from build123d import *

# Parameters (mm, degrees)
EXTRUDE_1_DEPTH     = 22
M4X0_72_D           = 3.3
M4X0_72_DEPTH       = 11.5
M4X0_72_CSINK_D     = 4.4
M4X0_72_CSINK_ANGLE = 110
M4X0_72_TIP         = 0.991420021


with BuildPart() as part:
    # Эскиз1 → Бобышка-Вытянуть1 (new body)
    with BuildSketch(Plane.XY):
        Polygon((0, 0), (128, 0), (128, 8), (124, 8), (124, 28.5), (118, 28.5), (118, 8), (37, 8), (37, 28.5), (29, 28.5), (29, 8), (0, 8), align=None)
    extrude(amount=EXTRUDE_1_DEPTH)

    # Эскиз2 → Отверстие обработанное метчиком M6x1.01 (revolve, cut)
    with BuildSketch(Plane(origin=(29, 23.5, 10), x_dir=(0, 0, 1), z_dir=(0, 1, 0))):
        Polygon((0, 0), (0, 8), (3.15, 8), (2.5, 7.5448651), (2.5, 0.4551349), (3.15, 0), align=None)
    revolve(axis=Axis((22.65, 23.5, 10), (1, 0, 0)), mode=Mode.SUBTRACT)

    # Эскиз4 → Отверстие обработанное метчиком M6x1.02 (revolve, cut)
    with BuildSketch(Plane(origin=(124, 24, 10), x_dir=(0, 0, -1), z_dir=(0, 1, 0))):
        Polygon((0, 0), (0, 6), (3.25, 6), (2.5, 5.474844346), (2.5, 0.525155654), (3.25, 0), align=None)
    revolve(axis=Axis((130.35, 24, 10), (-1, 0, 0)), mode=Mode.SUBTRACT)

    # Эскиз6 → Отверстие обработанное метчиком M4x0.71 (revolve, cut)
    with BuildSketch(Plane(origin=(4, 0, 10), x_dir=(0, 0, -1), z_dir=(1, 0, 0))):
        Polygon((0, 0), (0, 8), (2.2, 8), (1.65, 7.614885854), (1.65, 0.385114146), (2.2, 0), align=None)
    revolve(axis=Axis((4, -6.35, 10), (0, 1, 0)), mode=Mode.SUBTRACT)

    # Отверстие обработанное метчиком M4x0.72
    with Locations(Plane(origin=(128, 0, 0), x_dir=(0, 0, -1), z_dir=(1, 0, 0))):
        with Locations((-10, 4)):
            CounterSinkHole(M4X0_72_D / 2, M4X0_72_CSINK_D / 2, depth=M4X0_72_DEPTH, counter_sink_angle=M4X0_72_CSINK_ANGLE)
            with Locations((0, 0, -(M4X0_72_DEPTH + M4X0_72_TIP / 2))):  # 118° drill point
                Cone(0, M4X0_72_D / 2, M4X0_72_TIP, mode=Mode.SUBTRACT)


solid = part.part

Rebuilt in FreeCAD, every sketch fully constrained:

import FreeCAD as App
import Part
import Sketcher

V = App.Vector
Q = App.Units.Quantity


def add_polygon(sketch, points):
    """Adds a closed chain of lines whose ends are joined by coincident constraints."""
    first, n = sketch.GeometryCount, len(points)
    for a, b in zip(points, points[1:] + points[:1]):
        sketch.addGeometry(Part.LineSegment(App.Vector(*a, 0), App.Vector(*b, 0)), False)
    for i in range(n):
        sketch.addConstraint(Sketcher.Constraint("Coincident", first + i, 2, first + (i + 1) % n, 1))

doc = App.newDocument("Part")
body = doc.addObject("PartDesign::Body", "Body")

# Sketch on XY plane
sketch1 = body.newObject("Sketcher::SketchObject", "Sketch")
sketch1.AttachmentSupport = (doc.getObject("XY_Plane"), [""])
sketch1.MapMode = "FlatFace"
add_polygon(sketch1, [(0, 0), (128, 0), (128, 8), (124, 8), (124, 28.5), (118, 28.5), (118, 8), (37, 8), (37, 28.5), (29, 28.5), (29, 8), (0, 8)])  # lines 0-11
sketch1.addConstraint([
    Sketcher.Constraint("Horizontal", 0),
    Sketcher.Constraint("Vertical", 1),
    Sketcher.Constraint("Horizontal", 2),
    Sketcher.Constraint("Vertical", 3),
    Sketcher.Constraint("Horizontal", 4),
    Sketcher.Constraint("Vertical", 5),
    Sketcher.Constraint("Horizontal", 6),
    Sketcher.Constraint("Vertical", 7),
    Sketcher.Constraint("Horizontal", 8),
    Sketcher.Constraint("Vertical", 9),
    Sketcher.Constraint("Horizontal", 10),
    Sketcher.Constraint("Vertical", 11),
    Sketcher.Constraint("Coincident", 11, 2, -1, 1),
    Sketcher.Constraint("Horizontal", 2, 2, 5, 2),
    Sketcher.Constraint("Horizontal", 4, 2, 7, 2),
    Sketcher.Constraint("Horizontal", 6, 2, 9, 2),
    Sketcher.Constraint("Equal", 8, 1),
    Sketcher.Constraint("DistanceX", 0, 1, 0, 2, 128.0),
    Sketcher.Constraint("DistanceX", 2, 2, 2, 1, 4.0),
    Sketcher.Constraint("DistanceX", 4, 2, 4, 1, 6.0),
    Sketcher.Constraint("DistanceX", 6, 2, 6, 1, 81.0),
    Sketcher.Constraint("DistanceX", 8, 2, 8, 1, 8.0),
    Sketcher.Constraint("DistanceY", 3, 1, 3, 2, 20.5),
])
pad1 = body.newObject("PartDesign::Pad", "Pad")
pad1.Profile = sketch1
pad1.Length = 22

# Sketch on XZ plane
sketch2 = body.newObject("Sketcher::SketchObject", "Sketch001")
sketch2.AttachmentSupport = (doc.getObject("XZ_Plane"), [""])
sketch2.MapMode = "FlatFace"
sketch2.AttachmentOffset = App.Placement(V(0, 0, -23.5), App.Rotation())
add_polygon(sketch2, [(37, 10), (29, 10), (29, 13.2), (29.5, 12.5), (36.5, 12.5), (37, 13.2)])  # lines 0-5
sketch2.addGeometry(Part.LineSegment(V(29, 10, 0), V(37, 10, 0)), True)  # axis
sketch2.addConstraint([
    Sketcher.Constraint("Horizontal", 0),
    Sketcher.Constraint("Vertical", 1),
    Sketcher.Constraint("Horizontal", 3),
    Sketcher.Constraint("Vertical", 5),
    Sketcher.Constraint("Horizontal", 6),
    Sketcher.Constraint("Coincident", 6, 1, 0, 2),
    Sketcher.Constraint("Horizontal", 1, 2, 4, 2),
    Sketcher.Constraint("Vertical", 4, 2, 6, 2),
    Sketcher.Constraint("Equal", 2, 4),
    Sketcher.Constraint("DistanceX", 0, 2, 0, 1, 8.0),
    Sketcher.Constraint("Angle", 2, Q("-55 deg")),
    Sketcher.Constraint("DistanceX", -1, 1, 0, 2, 29.0),
    Sketcher.Constraint("DistanceY", -1, 1, 0, 2, 10.0),
    Sketcher.Constraint("DistanceY", 1, 1, 1, 2, 3.15),
    Sketcher.Constraint("DistanceY", -1, 1, 2, 2, 12.5),
])
groove = body.newObject("PartDesign::Groove", "Groove")
groove.Profile = sketch2
groove.ReferenceAxis = (sketch2, ["Axis0"])
groove.Angle = 360

# Sketch on XZ plane
sketch3 = body.newObject("Sketcher::SketchObject", "Sketch002")
sketch3.AttachmentSupport = (doc.getObject("XZ_Plane"), [""])
sketch3.MapMode = "FlatFace"
sketch3.AttachmentOffset = App.Placement(V(0, 0, -24), App.Rotation())
add_polygon(sketch3, [(118, 10), (124, 10), (124, 6.8), (123.5, 7.5), (118.5, 7.5), (118, 6.8)])  # lines 0-5
sketch3.addGeometry(Part.LineSegment(V(124, 10, 0), V(118, 10, 0)), True)  # axis
sketch3.addConstraint([
    Sketcher.Constraint("Horizontal", 0),
    Sketcher.Constraint("Vertical", 1),
    Sketcher.Constraint("Horizontal", 3),
    Sketcher.Constraint("Vertical", 5),
    Sketcher.Constraint("Horizontal", 6),
    Sketcher.Constraint("Coincident", 6, 1, 0, 2),
    Sketcher.Constraint("Horizontal", 1, 2, 4, 2),
    Sketcher.Constraint("Vertical", 4, 2, 6, 2),
    Sketcher.Constraint("Equal", 2, 4),
    Sketcher.Constraint("DistanceX", 0, 1, 0, 2, 6.0),
    Sketcher.Constraint("Angle", 2, Q("125 deg")),
    Sketcher.Constraint("DistanceX", -1, 1, 0, 2, 124.0),
    Sketcher.Constraint("DistanceY", -1, 1, 0, 2, 10.0),
    Sketcher.Constraint("DistanceY", 1, 2, 1, 1, 3.25),
    Sketcher.Constraint("DistanceY", -1, 1, 2, 2, 7.5),
])
groove2 = body.newObject("PartDesign::Groove", "Groove001")
groove2.Profile = sketch3
groove2.ReferenceAxis = (sketch3, ["Axis0"])
groove2.Angle = 360

# Sketch on YZ plane
sketch4 = body.newObject("Sketcher::SketchObject", "Sketch003")
sketch4.AttachmentSupport = (doc.getObject("YZ_Plane"), [""])
sketch4.MapMode = "FlatFace"
sketch4.AttachmentOffset = App.Placement(V(0, 0, 4), App.Rotation())
add_polygon(sketch4, [(8, 10), (0, 10), (0, 7.8), (0.4, 8.3), (7.6, 8.3), (8, 7.8)])  # lines 0-5
sketch4.addGeometry(Part.LineSegment(V(0, 10, 0), V(8, 10, 0)), True)  # axis
sketch4.addConstraint([
    Sketcher.Constraint("Horizontal", 0),
    Sketcher.Constraint("Vertical", 1),
    Sketcher.Constraint("Horizontal", 3),
    Sketcher.Constraint("Vertical", 5),
    Sketcher.Constraint("Horizontal", 6),
    Sketcher.Constraint("Coincident", 6, 1, 0, 2),
    Sketcher.Constraint("PointOnObject", 0, 2, -2),
    Sketcher.Constraint("Horizontal", 1, 2, 4, 2),
    Sketcher.Constraint("Vertical", 4, 2, 6, 2),
    Sketcher.Constraint("Equal", 2, 4),
    Sketcher.Constraint("DistanceX", 0, 2, 0, 1, 8.0),
    Sketcher.Constraint("Angle", 2, Q("55 deg")),
    Sketcher.Constraint("DistanceY", 1, 2, 1, 1, 2.2),
    Sketcher.Constraint("DistanceY", -1, 1, 0, 2, 10.0),
    Sketcher.Constraint("DistanceY", -1, 1, 2, 2, 8.35),
])
groove3 = body.newObject("PartDesign::Groove", "Groove002")
groove3.Profile = sketch4
groove3.ReferenceAxis = (sketch4, ["Axis0"])
groove3.Angle = 360

# Sketch on YZ plane
sketch5 = body.newObject("Sketcher::SketchObject", "Sketch004")
sketch5.AttachmentSupport = (doc.getObject("YZ_Plane"), [""])
sketch5.MapMode = "FlatFace"
sketch5.AttachmentOffset = App.Placement(V(0, 0, 128), App.Rotation())
sketch5.addGeometry(Part.Circle(V(4, 10, 0), V(0, 0, 1), 1.6), False)
sketch5.addConstraint([
    Sketcher.Constraint("Diameter", 0, 3.3),
    Sketcher.Constraint("DistanceX", -1, 1, 0, 3, 4.0),
    Sketcher.Constraint("DistanceY", -1, 1, 0, 3, 10.0),
])
doc.recompute()
hole = body.newObject("PartDesign::Hole", "Hole")
hole.Profile = sketch5
hole.ThreadType = "None"
hole.Diameter = 3.3
hole.DepthType = "Dimension"
hole.Depth = 11.5
hole.DrillPoint = "Angled"
hole.DrillPointAngle = 118
hole.HoleCutType = "Countersink"
hole.HoleCutDiameter = 4.4
hole.HoleCutCountersinkAngle = 110

doc.recompute()
